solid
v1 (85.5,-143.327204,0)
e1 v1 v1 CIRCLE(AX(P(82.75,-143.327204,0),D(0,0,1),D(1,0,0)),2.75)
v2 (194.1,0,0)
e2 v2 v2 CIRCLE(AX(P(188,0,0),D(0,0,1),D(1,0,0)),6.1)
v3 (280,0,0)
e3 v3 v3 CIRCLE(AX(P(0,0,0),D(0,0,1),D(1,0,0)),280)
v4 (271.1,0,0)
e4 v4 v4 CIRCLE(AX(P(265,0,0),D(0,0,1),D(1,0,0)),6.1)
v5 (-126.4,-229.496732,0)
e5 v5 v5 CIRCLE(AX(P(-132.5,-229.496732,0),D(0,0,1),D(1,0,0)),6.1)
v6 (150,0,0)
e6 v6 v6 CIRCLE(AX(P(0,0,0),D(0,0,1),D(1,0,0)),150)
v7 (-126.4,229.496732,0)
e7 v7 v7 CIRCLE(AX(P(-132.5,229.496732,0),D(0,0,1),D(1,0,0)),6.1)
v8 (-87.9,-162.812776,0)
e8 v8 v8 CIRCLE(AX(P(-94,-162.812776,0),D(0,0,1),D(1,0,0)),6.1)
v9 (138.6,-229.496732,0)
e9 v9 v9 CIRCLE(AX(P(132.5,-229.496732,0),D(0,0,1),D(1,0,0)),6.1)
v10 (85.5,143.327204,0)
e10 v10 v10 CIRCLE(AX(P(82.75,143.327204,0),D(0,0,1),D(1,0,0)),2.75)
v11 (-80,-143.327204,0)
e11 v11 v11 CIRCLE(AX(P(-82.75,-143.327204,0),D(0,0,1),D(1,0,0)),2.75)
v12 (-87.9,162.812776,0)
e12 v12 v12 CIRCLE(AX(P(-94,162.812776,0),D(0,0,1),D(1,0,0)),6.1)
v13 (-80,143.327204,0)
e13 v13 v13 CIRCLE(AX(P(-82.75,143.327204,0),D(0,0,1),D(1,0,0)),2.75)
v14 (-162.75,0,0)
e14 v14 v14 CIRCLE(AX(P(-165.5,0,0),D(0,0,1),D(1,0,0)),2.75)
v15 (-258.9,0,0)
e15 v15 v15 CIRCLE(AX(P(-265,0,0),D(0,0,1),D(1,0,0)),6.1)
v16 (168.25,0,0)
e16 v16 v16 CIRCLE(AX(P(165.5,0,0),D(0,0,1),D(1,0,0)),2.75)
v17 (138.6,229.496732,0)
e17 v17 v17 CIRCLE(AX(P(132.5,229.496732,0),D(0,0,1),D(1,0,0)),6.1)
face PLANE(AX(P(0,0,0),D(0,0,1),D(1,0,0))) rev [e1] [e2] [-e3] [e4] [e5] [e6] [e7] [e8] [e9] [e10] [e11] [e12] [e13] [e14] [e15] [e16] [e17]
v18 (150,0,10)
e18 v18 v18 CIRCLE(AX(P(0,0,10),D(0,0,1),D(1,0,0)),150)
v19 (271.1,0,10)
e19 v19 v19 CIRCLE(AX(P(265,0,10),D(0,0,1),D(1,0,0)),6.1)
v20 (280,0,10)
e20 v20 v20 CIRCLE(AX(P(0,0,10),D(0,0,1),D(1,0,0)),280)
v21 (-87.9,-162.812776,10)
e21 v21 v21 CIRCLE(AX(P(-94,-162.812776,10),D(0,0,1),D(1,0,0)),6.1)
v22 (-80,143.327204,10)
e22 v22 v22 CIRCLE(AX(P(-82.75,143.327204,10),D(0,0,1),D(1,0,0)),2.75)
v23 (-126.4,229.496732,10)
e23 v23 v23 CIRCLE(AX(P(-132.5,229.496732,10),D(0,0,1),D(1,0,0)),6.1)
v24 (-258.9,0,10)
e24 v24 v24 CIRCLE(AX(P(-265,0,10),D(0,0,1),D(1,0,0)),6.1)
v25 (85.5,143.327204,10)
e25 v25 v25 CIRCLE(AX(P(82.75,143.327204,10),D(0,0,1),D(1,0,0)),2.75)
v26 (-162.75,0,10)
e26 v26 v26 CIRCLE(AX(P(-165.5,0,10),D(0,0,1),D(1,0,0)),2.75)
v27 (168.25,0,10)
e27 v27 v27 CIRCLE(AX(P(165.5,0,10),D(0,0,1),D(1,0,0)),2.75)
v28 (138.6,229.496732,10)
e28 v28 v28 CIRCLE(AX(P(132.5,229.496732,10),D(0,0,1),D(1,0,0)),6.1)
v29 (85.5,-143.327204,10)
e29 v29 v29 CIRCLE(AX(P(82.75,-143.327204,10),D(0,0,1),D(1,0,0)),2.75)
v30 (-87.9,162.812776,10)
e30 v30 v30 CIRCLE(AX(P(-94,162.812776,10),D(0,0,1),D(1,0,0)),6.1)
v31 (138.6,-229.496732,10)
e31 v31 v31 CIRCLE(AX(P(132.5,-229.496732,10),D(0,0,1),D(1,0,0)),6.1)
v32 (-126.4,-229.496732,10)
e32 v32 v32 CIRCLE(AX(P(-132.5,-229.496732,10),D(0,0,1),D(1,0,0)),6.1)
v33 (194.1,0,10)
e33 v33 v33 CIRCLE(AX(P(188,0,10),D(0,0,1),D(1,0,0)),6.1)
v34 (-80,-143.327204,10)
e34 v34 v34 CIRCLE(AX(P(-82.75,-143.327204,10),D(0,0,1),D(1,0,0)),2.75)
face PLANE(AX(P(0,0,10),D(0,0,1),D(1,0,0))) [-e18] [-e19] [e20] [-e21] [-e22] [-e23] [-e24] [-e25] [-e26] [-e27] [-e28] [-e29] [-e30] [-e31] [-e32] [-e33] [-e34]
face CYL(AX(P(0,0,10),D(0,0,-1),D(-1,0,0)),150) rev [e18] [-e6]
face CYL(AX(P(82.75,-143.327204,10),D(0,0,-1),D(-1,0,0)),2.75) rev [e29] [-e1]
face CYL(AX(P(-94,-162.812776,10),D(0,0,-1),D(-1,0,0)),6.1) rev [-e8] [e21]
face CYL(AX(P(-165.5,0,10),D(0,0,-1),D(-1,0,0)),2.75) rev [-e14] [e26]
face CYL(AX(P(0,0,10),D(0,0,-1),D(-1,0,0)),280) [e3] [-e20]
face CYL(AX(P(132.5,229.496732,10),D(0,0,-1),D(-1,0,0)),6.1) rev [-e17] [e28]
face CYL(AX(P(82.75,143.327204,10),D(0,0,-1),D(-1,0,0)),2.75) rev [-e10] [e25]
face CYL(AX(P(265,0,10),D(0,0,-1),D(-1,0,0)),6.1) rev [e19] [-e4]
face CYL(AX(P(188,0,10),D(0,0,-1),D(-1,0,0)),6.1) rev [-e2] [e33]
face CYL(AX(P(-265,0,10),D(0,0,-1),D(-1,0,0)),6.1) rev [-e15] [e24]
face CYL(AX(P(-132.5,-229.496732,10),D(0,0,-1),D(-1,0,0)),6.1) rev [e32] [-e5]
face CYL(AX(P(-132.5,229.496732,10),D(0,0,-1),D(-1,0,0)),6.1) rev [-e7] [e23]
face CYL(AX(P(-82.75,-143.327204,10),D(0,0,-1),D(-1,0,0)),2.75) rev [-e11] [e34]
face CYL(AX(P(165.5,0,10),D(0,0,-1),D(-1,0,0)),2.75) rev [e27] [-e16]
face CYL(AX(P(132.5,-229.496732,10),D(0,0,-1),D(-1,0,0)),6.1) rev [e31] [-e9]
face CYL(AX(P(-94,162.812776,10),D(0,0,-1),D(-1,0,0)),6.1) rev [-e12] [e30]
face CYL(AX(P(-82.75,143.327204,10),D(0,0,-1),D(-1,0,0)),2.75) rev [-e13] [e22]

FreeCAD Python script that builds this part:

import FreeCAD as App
import Part
import Sketcher
from FreeCAD import Vector
Q = App.Units.Quantity

doc = App.newDocument("Part")
params = doc.addObject("Spreadsheet::Sheet", "Params")
for row, (alias, value) in enumerate([
    ("sketch1_diameter", "560 mm"),
    ("sketch1_diameter2", "300 mm"),
    ("sketch1_diameter3", "12.2 mm"),
    ("sketch1_diameter4", "5.5 mm"),
    ("pad1_length", "10 mm"),
], start=1):
    params.set(f"A{row}", alias)
    params.set(f"B{row}", "=" + value)
    params.setAlias(f"B{row}", alias)

body = doc.addObject("PartDesign::Body", "Body")

# Sketch on XY plane
sketch1 = body.newObject("Sketcher::SketchObject", "Sketch")
sketch1.AttachmentSupport = (doc.getObject("XY_Plane"), [""])
sketch1.MapMode = "FlatFace"
sketch1.addGeometry([
    Part.Circle(Vector(0, 0, 0), Vector(0, 0, 1), 280),  # 0
    Part.Circle(Vector(-132.5, -229.496732, 0), Vector(0, 0, 1), 6.1),  # 1
    Part.Circle(Vector(-94, -162.812776, 0), Vector(0, 0, 1), 6.1),  # 2
    Part.Circle(Vector(-82.75, -143.327204, 0), Vector(0, 0, 1), 2.75),  # 3
    Part.Circle(Vector(-265, 0, 0), Vector(0, 0, 1), 6.1),  # 4
    Part.Circle(Vector(132.5, -229.496732, 0), Vector(0, 0, 1), 6.1),  # 5
    Part.Circle(Vector(82.75, -143.327204, 0), Vector(0, 0, 1), 2.75),  # 6
    Part.Circle(Vector(-165.5, 0, 0), Vector(0, 0, 1), 2.75),  # 7
    Part.Circle(Vector(-82.75, 143.327204, 0), Vector(0, 0, 1), 2.75),  # 8
    Part.Circle(Vector(-94, 162.812776, 0), Vector(0, 0, 1), 6.1),  # 9
    Part.Circle(Vector(-132.5, 229.496732, 0), Vector(0, 0, 1), 6.1),  # 10
    Part.Circle(Vector(0, 0, 0), Vector(0, 0, 1), 150),  # 11
    Part.Circle(Vector(165.5, 0, 0), Vector(0, 0, 1), 2.75),  # 12
    Part.Circle(Vector(188, 0, 0), Vector(0, 0, 1), 6.1),  # 13
    Part.Circle(Vector(265, 0, 0), Vector(0, 0, 1), 6.1),  # 14
    Part.Circle(Vector(82.75, 143.327204, 0), Vector(0, 0, 1), 2.75),  # 15
    Part.Circle(Vector(132.5, 229.496732, 0), Vector(0, 0, 1), 6.1),  # 16
], False)
sketch1.addConstraint([
    Sketcher.Constraint("Coincident", 0, 3, -1, 1),
    Sketcher.Constraint("Coincident", 11, 3, -1, 1),
    Sketcher.Constraint("Equal", 1, 2),
    Sketcher.Constraint("Equal", 2, 4),
    Sketcher.Constraint("Equal", 4, 5),
    Sketcher.Constraint("Equal", 3, 6),
    Sketcher.Constraint("Equal", 6, 7),
    Sketcher.Constraint("Equal", 7, 8),
    Sketcher.Constraint("Equal", 5, 9),
    Sketcher.Constraint("Equal", 9, 10),
    Sketcher.Constraint("Equal", 8, 12),
    Sketcher.Constraint("Equal", 10, 13),
    Sketcher.Constraint("Equal", 13, 14),
    Sketcher.Constraint("Equal", 12, 15),
    Sketcher.Constraint("Equal", 14, 16),
    Sketcher.Constraint("Symmetric", 6, 3, 8, 3, -1, 1),
    Sketcher.Constraint("Symmetric", 5, 3, 10, 3, -1, 1),
    Sketcher.Constraint("Symmetric", 7, 3, 12, 3, -1, 1),
    Sketcher.Constraint("Symmetric", 4, 3, 14, 3, -1, 1),
    Sketcher.Constraint("Symmetric", 3, 3, 15, 3, -1, 1),
    Sketcher.Constraint("Symmetric", 1, 3, 16, 3, -1, 1),
    Sketcher.Constraint("Symmetric", 1, 3, 5, 3, -2),
    Sketcher.Constraint("Symmetric", 3, 3, 6, 3, -2),
    Sketcher.Constraint("Symmetric", 2, 3, 9, 3, -1),
    Sketcher.Constraint("PointOnObject", 4, 3, -1),
    Sketcher.Constraint("PointOnObject", 7, 3, -1),
    Sketcher.Constraint("PointOnObject", 13, 3, -1),
    Sketcher.Constraint("Diameter", 0, Q("560 mm")),
    Sketcher.Constraint("Diameter", 11, Q("300 mm")),
    Sketcher.Constraint("Diameter", 1, Q("12.2 mm")),
    Sketcher.Constraint("Diameter", 3, Q("5.5 mm")),
    Sketcher.Constraint("DistanceX", 2, 3, -1, 1, Q("94 mm")),
    Sketcher.Constraint("DistanceX", 4, 3, -1, 1, Q("265 mm")),
    Sketcher.Constraint("DistanceX", -1, 1, 13, 3, Q("188 mm")),
    Sketcher.Constraint("DistanceX", 1, 3, 5, 3, Q("265 mm")),
    Sketcher.Constraint("DistanceX", 7, 3, 1, 3, Q("33 mm")),
    Sketcher.Constraint("DistanceX", 3, 3, 6, 3, Q("165.5 mm")),
    Sketcher.Constraint("DistanceY", 2, 3, 3, 3, Q("19.485572 mm")),
    Sketcher.Constraint("DistanceY", 3, 3, 8, 3, Q("286.654409 mm")),
    Sketcher.Constraint("DistanceY", 1, 3, -1, 1, Q("229.496732 mm")),
])
sketch1.setExpression("Constraints[27]", "Params.sketch1_diameter")
sketch1.setExpression("Constraints[28]", "Params.sketch1_diameter2")
sketch1.setExpression("Constraints[29]", "Params.sketch1_diameter3")
sketch1.setExpression("Constraints[30]", "Params.sketch1_diameter4")
pad1 = body.newObject("PartDesign::Pad", "Pad")
pad1.Profile = sketch1
pad1.setExpression("Length", "Params.pad1_length")

doc.recompute()
